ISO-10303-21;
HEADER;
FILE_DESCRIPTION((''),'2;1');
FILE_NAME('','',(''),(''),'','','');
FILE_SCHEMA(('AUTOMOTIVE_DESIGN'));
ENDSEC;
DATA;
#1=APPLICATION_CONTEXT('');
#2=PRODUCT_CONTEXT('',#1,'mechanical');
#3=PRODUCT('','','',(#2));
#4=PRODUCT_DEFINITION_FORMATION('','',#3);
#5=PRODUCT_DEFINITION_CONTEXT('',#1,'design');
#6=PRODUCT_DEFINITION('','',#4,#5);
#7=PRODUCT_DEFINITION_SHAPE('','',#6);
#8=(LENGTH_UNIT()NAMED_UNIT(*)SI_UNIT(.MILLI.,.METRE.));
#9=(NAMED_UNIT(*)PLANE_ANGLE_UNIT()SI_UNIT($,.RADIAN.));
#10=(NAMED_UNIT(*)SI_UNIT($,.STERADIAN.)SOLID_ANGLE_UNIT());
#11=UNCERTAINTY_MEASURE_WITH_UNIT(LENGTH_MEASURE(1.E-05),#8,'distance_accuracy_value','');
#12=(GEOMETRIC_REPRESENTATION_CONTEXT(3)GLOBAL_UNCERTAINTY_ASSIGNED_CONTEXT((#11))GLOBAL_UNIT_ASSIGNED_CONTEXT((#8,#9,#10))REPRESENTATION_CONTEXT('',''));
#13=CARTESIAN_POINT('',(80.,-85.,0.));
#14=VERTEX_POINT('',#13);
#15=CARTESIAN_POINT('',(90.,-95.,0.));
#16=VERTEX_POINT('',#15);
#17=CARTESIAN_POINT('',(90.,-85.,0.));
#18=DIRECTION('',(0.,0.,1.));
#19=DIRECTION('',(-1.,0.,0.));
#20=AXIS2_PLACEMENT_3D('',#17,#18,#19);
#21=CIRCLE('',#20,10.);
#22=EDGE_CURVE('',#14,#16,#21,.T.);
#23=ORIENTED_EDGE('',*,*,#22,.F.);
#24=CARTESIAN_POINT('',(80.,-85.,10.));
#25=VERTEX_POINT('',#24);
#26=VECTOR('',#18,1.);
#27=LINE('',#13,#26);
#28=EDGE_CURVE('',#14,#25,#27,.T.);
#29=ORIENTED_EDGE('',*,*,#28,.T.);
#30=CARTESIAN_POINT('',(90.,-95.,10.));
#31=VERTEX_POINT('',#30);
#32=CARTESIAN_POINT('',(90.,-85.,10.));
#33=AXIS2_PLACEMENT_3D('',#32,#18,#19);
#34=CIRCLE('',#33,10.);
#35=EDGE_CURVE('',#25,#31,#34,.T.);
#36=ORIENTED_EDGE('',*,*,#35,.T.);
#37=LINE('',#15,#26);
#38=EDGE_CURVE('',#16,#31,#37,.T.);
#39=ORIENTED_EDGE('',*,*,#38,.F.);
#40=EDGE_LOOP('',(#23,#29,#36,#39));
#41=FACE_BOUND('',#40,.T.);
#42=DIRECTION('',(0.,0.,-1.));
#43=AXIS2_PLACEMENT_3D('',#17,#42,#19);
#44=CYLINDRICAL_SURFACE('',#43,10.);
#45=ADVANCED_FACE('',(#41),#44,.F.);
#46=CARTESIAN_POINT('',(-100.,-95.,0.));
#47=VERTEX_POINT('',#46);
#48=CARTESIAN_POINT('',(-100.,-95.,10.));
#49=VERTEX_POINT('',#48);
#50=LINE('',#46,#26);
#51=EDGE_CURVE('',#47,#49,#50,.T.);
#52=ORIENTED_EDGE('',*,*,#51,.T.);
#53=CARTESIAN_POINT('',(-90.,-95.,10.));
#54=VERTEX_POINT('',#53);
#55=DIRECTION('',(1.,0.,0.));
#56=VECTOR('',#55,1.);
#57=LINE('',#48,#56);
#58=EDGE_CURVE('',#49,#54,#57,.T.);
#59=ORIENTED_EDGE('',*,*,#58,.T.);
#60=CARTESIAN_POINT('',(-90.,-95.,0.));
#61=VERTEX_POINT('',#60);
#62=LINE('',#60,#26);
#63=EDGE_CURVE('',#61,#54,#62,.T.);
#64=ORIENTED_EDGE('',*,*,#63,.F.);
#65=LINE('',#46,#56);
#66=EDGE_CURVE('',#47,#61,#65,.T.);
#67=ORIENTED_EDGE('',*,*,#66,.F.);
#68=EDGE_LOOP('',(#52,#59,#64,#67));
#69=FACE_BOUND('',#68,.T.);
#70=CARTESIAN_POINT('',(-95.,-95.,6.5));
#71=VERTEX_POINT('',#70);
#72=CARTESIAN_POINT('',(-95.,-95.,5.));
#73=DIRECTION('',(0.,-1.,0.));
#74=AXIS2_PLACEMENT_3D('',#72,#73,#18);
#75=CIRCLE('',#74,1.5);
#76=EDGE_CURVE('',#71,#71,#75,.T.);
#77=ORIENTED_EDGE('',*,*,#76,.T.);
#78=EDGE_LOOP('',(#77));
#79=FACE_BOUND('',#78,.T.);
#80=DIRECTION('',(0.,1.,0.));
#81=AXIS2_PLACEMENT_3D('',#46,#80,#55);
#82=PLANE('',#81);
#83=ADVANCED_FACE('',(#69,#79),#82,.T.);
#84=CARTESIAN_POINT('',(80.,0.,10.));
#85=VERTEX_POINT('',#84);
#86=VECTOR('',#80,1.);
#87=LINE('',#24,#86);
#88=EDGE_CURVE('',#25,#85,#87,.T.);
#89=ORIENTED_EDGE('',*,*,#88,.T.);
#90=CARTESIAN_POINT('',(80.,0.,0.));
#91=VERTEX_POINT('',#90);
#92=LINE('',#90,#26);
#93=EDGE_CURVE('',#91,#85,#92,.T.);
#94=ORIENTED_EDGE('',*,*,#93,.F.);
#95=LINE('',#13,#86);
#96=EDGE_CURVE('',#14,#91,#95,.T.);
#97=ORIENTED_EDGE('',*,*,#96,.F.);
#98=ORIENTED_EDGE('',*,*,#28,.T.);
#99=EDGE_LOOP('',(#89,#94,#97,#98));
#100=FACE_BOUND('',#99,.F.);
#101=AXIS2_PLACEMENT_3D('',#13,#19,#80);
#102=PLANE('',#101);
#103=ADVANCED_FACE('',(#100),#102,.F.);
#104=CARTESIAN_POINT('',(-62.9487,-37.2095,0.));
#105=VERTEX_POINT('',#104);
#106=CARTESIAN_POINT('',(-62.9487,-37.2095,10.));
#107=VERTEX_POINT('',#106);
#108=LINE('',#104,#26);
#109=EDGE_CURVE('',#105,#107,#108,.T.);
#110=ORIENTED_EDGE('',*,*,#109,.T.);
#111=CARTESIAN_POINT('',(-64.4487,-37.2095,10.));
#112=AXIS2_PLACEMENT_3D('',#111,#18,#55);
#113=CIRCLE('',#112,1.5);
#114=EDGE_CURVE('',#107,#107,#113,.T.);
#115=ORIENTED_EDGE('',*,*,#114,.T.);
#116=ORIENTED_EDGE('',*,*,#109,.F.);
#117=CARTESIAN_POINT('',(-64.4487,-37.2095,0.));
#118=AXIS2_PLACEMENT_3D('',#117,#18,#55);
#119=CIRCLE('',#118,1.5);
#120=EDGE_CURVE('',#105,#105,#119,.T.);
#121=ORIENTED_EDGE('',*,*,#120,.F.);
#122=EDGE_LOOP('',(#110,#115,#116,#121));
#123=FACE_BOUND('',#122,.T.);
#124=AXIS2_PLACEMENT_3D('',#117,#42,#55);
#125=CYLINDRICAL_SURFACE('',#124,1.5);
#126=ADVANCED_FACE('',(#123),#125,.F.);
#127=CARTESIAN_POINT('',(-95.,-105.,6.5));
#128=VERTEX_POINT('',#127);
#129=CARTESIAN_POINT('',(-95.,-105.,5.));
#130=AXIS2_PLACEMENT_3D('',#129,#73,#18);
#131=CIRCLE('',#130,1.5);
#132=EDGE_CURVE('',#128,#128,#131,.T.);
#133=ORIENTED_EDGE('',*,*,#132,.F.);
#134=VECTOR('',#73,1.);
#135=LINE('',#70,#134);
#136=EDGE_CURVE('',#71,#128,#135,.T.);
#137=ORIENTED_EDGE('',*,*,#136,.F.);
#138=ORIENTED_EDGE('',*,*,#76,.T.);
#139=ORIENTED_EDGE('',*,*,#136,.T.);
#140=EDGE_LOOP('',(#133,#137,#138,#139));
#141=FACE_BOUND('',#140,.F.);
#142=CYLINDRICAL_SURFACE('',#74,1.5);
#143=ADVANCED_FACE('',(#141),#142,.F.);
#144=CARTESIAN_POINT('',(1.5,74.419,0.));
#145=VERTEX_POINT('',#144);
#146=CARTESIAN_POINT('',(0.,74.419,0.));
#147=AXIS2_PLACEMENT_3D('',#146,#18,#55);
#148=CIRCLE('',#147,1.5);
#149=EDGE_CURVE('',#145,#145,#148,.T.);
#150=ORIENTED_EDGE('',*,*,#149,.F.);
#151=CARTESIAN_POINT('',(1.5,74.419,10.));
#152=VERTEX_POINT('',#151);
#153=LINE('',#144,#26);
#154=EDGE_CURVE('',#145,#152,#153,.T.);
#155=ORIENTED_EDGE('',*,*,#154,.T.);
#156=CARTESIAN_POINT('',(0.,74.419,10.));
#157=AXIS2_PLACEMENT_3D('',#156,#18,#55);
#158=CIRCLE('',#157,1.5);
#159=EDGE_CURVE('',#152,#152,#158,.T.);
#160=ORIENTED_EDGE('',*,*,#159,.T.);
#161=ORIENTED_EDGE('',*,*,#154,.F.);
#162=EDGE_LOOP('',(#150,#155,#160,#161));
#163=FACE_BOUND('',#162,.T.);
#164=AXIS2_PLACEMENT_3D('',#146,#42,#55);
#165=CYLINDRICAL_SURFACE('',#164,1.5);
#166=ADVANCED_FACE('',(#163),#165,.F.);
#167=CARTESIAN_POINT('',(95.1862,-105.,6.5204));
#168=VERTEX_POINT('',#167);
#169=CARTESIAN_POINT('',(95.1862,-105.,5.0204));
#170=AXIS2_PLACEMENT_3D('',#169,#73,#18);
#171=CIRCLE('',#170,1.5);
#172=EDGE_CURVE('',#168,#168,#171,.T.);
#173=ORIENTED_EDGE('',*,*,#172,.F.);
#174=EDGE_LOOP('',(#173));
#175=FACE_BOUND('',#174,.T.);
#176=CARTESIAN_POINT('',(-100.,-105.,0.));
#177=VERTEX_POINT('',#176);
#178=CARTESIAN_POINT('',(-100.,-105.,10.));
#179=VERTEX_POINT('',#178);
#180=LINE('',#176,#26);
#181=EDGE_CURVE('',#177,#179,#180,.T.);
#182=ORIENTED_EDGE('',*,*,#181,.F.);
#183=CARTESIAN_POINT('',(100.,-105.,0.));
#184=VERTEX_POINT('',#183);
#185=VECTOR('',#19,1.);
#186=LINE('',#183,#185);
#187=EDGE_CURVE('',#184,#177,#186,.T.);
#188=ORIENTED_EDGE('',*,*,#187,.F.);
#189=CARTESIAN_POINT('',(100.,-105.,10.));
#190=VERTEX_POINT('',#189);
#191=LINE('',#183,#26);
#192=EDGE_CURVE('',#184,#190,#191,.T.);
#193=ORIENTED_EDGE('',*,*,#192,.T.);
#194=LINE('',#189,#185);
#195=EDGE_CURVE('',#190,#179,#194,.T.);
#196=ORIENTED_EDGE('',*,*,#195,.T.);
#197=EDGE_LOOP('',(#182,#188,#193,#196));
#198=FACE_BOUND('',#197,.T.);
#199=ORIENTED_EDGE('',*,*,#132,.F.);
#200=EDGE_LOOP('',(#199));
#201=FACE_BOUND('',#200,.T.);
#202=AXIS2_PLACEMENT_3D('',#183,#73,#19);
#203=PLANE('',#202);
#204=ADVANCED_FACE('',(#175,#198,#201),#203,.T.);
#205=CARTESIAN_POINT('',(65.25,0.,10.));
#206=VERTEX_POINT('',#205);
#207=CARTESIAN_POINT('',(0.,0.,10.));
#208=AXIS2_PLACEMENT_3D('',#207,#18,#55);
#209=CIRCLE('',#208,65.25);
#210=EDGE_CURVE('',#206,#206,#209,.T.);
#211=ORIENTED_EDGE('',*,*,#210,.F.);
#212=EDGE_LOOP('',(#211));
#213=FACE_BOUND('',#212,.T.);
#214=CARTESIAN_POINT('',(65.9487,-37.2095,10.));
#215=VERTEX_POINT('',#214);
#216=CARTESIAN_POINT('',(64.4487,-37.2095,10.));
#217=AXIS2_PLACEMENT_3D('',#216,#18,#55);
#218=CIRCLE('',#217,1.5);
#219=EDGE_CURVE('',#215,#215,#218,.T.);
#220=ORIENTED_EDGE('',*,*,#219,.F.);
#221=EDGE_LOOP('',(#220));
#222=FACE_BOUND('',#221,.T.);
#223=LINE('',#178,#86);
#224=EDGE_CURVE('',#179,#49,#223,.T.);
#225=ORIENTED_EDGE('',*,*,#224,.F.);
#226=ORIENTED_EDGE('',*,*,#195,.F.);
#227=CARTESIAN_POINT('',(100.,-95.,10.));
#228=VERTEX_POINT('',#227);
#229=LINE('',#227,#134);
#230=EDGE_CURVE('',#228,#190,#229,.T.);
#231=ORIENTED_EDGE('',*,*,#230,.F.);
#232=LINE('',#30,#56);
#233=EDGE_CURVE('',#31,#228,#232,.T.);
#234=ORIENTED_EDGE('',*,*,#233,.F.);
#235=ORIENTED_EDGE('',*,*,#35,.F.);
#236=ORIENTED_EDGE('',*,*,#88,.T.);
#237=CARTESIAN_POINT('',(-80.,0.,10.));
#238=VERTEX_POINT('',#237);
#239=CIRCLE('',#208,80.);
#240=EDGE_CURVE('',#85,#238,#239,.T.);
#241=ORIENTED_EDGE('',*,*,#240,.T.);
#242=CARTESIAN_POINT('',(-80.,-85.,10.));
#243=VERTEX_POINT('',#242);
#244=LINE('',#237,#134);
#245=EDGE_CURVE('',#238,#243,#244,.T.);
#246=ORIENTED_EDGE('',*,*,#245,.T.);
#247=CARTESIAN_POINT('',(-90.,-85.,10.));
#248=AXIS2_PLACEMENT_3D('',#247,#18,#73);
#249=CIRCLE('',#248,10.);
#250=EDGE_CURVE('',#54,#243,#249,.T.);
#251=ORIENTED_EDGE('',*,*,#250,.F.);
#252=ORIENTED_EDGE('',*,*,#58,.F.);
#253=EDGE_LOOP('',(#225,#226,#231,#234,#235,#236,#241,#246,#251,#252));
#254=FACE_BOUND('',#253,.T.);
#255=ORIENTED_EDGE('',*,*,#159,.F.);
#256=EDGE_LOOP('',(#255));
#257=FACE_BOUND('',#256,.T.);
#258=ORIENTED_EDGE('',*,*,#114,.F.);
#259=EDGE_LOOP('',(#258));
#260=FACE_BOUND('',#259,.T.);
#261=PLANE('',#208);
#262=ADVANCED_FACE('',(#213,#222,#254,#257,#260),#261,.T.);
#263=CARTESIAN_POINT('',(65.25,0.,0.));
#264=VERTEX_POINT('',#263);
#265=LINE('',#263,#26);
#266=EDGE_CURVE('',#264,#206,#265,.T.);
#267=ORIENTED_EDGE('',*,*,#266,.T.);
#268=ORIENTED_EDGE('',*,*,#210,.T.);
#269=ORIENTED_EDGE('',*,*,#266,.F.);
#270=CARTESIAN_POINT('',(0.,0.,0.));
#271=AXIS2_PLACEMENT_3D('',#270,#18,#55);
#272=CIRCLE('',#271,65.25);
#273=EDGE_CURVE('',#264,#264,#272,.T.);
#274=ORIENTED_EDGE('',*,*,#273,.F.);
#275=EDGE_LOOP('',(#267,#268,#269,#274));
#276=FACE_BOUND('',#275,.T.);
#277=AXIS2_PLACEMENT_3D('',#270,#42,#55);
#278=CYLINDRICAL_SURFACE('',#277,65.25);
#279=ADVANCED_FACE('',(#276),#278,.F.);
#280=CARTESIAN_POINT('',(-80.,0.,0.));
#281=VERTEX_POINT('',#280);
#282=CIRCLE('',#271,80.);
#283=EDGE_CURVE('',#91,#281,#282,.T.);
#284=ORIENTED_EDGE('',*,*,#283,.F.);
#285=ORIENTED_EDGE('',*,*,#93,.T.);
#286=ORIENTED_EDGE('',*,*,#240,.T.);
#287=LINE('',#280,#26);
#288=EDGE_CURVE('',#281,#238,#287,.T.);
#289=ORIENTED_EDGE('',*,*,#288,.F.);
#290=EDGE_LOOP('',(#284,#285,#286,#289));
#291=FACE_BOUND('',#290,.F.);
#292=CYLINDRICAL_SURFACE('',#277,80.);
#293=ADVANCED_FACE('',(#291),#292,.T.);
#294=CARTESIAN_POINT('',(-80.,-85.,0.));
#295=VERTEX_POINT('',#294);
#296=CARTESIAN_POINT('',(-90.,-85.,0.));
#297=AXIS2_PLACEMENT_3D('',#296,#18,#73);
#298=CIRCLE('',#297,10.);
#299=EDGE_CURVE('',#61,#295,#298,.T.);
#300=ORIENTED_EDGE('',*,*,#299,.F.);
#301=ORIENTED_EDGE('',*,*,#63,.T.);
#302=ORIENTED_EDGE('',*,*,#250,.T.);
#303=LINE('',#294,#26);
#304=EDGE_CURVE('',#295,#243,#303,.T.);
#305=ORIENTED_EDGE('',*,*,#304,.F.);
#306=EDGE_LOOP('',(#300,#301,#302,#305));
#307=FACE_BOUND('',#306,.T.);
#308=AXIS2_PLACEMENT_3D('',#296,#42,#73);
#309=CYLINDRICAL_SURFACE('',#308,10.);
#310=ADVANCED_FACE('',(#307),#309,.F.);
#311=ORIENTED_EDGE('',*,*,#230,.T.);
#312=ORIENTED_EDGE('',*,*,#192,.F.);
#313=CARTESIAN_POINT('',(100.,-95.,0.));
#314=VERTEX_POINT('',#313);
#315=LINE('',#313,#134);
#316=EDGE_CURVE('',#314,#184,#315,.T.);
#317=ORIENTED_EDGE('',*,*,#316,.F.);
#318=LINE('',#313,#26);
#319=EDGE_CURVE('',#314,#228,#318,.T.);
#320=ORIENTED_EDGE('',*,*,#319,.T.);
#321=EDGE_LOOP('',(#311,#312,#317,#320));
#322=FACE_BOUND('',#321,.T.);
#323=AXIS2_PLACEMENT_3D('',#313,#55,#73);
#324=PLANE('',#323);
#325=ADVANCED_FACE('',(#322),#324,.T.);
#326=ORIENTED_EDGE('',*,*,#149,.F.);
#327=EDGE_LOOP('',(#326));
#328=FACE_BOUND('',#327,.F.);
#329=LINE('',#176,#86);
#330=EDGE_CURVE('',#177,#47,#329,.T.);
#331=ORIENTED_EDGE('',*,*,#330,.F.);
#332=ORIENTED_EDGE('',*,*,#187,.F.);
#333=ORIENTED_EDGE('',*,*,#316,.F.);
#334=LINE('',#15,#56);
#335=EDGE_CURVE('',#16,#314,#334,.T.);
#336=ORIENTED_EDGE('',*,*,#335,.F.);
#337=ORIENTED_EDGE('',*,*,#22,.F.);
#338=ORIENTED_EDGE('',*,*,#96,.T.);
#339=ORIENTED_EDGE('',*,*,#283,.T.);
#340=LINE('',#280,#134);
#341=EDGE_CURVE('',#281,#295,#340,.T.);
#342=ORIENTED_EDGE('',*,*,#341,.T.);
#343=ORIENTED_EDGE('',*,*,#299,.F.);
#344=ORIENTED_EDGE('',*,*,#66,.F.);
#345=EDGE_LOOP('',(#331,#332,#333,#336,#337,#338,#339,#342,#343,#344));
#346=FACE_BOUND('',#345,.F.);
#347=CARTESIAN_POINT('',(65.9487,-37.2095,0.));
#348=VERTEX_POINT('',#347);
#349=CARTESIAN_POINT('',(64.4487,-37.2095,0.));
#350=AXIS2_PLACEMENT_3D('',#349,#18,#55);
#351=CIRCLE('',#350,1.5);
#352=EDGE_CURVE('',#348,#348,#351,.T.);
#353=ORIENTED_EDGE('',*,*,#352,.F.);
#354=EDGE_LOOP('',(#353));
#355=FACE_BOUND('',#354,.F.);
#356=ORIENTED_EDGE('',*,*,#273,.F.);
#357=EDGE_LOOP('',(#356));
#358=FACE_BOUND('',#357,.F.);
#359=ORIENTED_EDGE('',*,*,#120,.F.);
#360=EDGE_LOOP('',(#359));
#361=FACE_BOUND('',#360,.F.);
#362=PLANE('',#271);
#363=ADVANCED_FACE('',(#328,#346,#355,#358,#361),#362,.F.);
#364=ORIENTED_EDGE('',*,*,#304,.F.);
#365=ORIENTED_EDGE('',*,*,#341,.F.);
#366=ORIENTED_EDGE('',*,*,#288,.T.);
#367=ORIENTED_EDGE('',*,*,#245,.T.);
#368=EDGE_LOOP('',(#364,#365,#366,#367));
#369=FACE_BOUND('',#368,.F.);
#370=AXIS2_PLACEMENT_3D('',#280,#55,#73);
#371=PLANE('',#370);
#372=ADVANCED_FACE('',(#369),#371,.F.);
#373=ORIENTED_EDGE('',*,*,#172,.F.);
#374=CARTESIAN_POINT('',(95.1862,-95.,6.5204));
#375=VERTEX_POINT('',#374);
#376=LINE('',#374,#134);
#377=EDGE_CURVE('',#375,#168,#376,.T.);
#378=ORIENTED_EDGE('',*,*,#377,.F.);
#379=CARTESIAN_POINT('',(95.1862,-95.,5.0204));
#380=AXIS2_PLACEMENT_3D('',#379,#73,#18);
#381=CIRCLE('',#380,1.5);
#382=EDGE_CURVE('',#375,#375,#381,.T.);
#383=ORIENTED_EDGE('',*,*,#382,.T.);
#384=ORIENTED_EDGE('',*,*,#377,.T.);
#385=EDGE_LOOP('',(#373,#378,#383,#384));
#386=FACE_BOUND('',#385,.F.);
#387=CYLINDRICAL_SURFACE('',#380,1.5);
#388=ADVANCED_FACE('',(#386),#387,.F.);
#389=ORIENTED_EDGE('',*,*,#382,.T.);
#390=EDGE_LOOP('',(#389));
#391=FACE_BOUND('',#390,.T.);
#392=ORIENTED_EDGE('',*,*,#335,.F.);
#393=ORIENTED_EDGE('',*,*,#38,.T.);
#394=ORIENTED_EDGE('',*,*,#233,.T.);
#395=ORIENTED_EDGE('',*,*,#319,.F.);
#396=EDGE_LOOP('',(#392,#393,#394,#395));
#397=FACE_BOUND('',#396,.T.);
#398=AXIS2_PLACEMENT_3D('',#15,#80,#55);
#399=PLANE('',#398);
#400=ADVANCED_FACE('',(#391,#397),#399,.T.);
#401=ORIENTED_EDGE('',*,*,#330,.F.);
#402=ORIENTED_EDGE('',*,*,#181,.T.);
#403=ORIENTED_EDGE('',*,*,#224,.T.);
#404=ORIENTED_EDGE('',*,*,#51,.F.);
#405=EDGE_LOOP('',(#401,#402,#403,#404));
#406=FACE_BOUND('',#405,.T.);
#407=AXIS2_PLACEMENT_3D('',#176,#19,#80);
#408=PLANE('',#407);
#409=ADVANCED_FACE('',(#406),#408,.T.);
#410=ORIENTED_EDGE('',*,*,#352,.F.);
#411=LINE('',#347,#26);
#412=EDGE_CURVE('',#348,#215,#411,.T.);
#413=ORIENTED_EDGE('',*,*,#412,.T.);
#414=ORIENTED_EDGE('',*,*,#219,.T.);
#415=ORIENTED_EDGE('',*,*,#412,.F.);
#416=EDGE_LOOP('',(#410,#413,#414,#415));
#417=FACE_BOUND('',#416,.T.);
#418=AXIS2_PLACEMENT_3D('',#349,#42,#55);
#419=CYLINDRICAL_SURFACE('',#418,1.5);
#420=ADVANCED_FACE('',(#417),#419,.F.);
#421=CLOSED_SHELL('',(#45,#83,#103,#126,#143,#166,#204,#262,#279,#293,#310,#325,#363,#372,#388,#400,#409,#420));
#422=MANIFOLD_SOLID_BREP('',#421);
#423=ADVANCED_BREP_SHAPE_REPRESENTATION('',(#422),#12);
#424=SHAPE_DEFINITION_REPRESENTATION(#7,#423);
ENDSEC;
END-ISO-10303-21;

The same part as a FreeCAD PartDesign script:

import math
import FreeCAD as App
import Part
import Sketcher

V = App.Vector
Q = App.Units.Quantity

doc = App.newDocument("Part")
body = doc.addObject("PartDesign::Body", "Body")

sketch1 = body.newObject("Sketcher::SketchObject", "Sketch")
sketch1.AttachmentSupport = (doc.getObject("XY_Plane"), [""])
sketch1.MapMode = "FlatFace"
sketch1.addGeometry(Part.ArcOfCircle(Part.Circle(V(0, 0, 0), V(0, 0, 1), 80), math.radians(0), math.radians(180)), False)
sketch1.addGeometry(Part.LineSegment(V(-80, 0, 0), V(-80, -85, 0)), False)
sketch1.addGeometry(Part.ArcOfCircle(Part.Circle(V(-90, -85, 0), V(0, 0, 1), 10), math.radians(-90), math.radians(0)), False)
sketch1.addGeometry(Part.LineSegment(V(-90, -95, 0), V(-100, -95, 0)), False)
sketch1.addGeometry(Part.LineSegment(V(-100, -95, 0), V(-100, -105, 0)), False)
sketch1.addGeometry(Part.LineSegment(V(-100, -105, 0), V(100, -105, 0)), False)
sketch1.addGeometry(Part.LineSegment(V(100, -105, 0), V(100, -95, 0)), False)
sketch1.addGeometry(Part.LineSegment(V(100, -95, 0), V(90, -95, 0)), False)
sketch1.addGeometry(Part.ArcOfCircle(Part.Circle(V(90, -85, 0), V(0, 0, 1), 10), math.radians(180), math.radians(270)), False)
sketch1.addGeometry(Part.LineSegment(V(80, -85, 0), V(80, 0, 0)), False)
sketch1.addGeometry(Part.Circle(V(-64.4487, -37.2095, 0), V(0, 0, 1), 1.5), False)
sketch1.addGeometry(Part.Circle(V(64.4487, -37.2095, 0), V(0, 0, 1), 1.5), False)
sketch1.addGeometry(Part.Circle(V(0, 0, 0), V(0, 0, 1), 65.25), False)
sketch1.addGeometry(Part.Circle(V(0, 74.419, 0), V(0, 0, 1), 1.5), False)
sketch1.addConstraint(Sketcher.Constraint("Tangent", 0, 2, 1, 1))
sketch1.addConstraint(Sketcher.Constraint("Tangent", 1, 2, 2, 2))
sketch1.addConstraint(Sketcher.Constraint("Tangent", 2, 1, 3, 1))
sketch1.addConstraint(Sketcher.Constraint("Coincident", 3, 2, 4, 1))
sketch1.addConstraint(Sketcher.Constraint("Coincident", 4, 2, 5, 1))
sketch1.addConstraint(Sketcher.Constraint("Coincident", 5, 2, 6, 1))
sketch1.addConstraint(Sketcher.Constraint("Coincident", 6, 2, 7, 1))
sketch1.addConstraint(Sketcher.Constraint("Tangent", 7, 2, 8, 2))
sketch1.addConstraint(Sketcher.Constraint("Tangent", 8, 1, 9, 1))
sketch1.addConstraint(Sketcher.Constraint("Tangent", 9, 2, 0, 1))
sketch1.addConstraint(Sketcher.Constraint("Vertical", 1))
sketch1.addConstraint(Sketcher.Constraint("Horizontal", 3))
sketch1.addConstraint(Sketcher.Constraint("Vertical", 4))
sketch1.addConstraint(Sketcher.Constraint("Horizontal", 5))
sketch1.addConstraint(Sketcher.Constraint("Vertical", 6))
sketch1.addConstraint(Sketcher.Constraint("Horizontal", 7))
sketch1.addConstraint(Sketcher.Constraint("Vertical", 9))
sketch1.addConstraint(Sketcher.Constraint("Coincident", 0, 3, -1, 1))
sketch1.addConstraint(Sketcher.Constraint("Coincident", 12, 3, -1, 1))
sketch1.addConstraint(Sketcher.Constraint("Equal", 2, 8))
sketch1.addConstraint(Sketcher.Constraint("Equal", 10, 11))
sketch1.addConstraint(Sketcher.Constraint("Equal", 11, 13))
sketch1.addConstraint(Sketcher.Constraint("Symmetric", 10, 3, 11, 3, -2))
sketch1.addConstraint(Sketcher.Constraint("Symmetric", 3, 2, 6, 2, -2))
sketch1.addConstraint(Sketcher.Constraint("PointOnObject", 13, 3, -2))
sketch1.addConstraint(Sketcher.Constraint("Equal", 7, 4))
sketch1.addConstraint(Sketcher.Constraint("Diameter", 10, Q("3 mm")))
sketch1.addConstraint(Sketcher.Constraint("Radius", 0, Q("80 mm")))
sketch1.addConstraint(Sketcher.Constraint("Radius", 2, Q("10 mm")))
sketch1.addConstraint(Sketcher.Constraint("Diameter", 12, Q("130.5 mm")))
sketch1.addConstraint(Sketcher.Constraint("DistanceX", 3, 2, 3, 1, Q("10 mm")))
sketch1.addConstraint(Sketcher.Constraint("DistanceY", 4, 2, -1, 1, Q("105 mm")))
sketch1.addConstraint(Sketcher.Constraint("DistanceY", -1, 1, 13, 3, Q("74.419 mm")))
sketch1.addConstraint(Sketcher.Constraint("DistanceX", 10, 3, -1, 1, Q("64.4487 mm")))
sketch1.addConstraint(Sketcher.Constraint("DistanceY", 10, 3, -1, 1, Q("37.2095 mm")))
pad1 = body.newObject("PartDesign::Pad", "Pad")
pad1.Profile = sketch1
pad1.Length = 10

sketch2 = body.newObject("Sketcher::SketchObject", "Sketch001")
sketch2.AttachmentSupport = (doc.getObject("XZ_Plane"), [""])
sketch2.MapMode = "FlatFace"
sketch2.AttachmentOffset = App.Placement(V(0, 0, 95), App.Rotation())
sketch2.addGeometry(Part.Circle(V(-95, 5, 0), V(0, 0, 1), 1.5), False)
sketch2.addConstraint(Sketcher.Constraint("Diameter", 0, Q("3 mm")))
sketch2.addConstraint(Sketcher.Constraint("DistanceX", 0, 3, -1, 1, Q("95 mm")))
sketch2.addConstraint(Sketcher.Constraint("DistanceY", -1, 1, 0, 3, Q("5 mm")))
doc.recompute()
hole = body.newObject("PartDesign::Hole", "Hole")
hole.Profile = sketch2
hole.ThreadType = "None"
hole.Diameter = 3
hole.DepthType = "Dimension"
hole.Depth = 10
hole.DrillPoint = "Angled"
hole.DrillPointAngle = 118
hole.Reversed = True

sketch3 = body.newObject("Sketcher::SketchObject", "Sketch002")
sketch3.AttachmentSupport = (doc.getObject("XZ_Plane"), [""])
sketch3.MapMode = "FlatFace"
sketch3.AttachmentOffset = App.Placement(V(0, 0, 95), App.Rotation())
sketch3.addGeometry(Part.Circle(V(95.1862, 5.0204, 0), V(0, 0, 1), 1.5), False)
sketch3.addConstraint(Sketcher.Constraint("Diameter", 0, Q("3 mm")))
sketch3.addConstraint(Sketcher.Constraint("DistanceX", -1, 1, 0, 3, Q("95.1862 mm")))
sketch3.addConstraint(Sketcher.Constraint("DistanceY", -1, 1, 0, 3, Q("5.0204 mm")))
doc.recompute()
hole2 = body.newObject("PartDesign::Hole", "Hole001")
hole2.Profile = sketch3
hole2.ThreadType = "None"
hole2.Diameter = 3
hole2.DepthType = "Dimension"
hole2.Depth = 10
hole2.DrillPoint = "Angled"
hole2.DrillPointAngle = 118
hole2.Reversed = True

doc.recompute()
